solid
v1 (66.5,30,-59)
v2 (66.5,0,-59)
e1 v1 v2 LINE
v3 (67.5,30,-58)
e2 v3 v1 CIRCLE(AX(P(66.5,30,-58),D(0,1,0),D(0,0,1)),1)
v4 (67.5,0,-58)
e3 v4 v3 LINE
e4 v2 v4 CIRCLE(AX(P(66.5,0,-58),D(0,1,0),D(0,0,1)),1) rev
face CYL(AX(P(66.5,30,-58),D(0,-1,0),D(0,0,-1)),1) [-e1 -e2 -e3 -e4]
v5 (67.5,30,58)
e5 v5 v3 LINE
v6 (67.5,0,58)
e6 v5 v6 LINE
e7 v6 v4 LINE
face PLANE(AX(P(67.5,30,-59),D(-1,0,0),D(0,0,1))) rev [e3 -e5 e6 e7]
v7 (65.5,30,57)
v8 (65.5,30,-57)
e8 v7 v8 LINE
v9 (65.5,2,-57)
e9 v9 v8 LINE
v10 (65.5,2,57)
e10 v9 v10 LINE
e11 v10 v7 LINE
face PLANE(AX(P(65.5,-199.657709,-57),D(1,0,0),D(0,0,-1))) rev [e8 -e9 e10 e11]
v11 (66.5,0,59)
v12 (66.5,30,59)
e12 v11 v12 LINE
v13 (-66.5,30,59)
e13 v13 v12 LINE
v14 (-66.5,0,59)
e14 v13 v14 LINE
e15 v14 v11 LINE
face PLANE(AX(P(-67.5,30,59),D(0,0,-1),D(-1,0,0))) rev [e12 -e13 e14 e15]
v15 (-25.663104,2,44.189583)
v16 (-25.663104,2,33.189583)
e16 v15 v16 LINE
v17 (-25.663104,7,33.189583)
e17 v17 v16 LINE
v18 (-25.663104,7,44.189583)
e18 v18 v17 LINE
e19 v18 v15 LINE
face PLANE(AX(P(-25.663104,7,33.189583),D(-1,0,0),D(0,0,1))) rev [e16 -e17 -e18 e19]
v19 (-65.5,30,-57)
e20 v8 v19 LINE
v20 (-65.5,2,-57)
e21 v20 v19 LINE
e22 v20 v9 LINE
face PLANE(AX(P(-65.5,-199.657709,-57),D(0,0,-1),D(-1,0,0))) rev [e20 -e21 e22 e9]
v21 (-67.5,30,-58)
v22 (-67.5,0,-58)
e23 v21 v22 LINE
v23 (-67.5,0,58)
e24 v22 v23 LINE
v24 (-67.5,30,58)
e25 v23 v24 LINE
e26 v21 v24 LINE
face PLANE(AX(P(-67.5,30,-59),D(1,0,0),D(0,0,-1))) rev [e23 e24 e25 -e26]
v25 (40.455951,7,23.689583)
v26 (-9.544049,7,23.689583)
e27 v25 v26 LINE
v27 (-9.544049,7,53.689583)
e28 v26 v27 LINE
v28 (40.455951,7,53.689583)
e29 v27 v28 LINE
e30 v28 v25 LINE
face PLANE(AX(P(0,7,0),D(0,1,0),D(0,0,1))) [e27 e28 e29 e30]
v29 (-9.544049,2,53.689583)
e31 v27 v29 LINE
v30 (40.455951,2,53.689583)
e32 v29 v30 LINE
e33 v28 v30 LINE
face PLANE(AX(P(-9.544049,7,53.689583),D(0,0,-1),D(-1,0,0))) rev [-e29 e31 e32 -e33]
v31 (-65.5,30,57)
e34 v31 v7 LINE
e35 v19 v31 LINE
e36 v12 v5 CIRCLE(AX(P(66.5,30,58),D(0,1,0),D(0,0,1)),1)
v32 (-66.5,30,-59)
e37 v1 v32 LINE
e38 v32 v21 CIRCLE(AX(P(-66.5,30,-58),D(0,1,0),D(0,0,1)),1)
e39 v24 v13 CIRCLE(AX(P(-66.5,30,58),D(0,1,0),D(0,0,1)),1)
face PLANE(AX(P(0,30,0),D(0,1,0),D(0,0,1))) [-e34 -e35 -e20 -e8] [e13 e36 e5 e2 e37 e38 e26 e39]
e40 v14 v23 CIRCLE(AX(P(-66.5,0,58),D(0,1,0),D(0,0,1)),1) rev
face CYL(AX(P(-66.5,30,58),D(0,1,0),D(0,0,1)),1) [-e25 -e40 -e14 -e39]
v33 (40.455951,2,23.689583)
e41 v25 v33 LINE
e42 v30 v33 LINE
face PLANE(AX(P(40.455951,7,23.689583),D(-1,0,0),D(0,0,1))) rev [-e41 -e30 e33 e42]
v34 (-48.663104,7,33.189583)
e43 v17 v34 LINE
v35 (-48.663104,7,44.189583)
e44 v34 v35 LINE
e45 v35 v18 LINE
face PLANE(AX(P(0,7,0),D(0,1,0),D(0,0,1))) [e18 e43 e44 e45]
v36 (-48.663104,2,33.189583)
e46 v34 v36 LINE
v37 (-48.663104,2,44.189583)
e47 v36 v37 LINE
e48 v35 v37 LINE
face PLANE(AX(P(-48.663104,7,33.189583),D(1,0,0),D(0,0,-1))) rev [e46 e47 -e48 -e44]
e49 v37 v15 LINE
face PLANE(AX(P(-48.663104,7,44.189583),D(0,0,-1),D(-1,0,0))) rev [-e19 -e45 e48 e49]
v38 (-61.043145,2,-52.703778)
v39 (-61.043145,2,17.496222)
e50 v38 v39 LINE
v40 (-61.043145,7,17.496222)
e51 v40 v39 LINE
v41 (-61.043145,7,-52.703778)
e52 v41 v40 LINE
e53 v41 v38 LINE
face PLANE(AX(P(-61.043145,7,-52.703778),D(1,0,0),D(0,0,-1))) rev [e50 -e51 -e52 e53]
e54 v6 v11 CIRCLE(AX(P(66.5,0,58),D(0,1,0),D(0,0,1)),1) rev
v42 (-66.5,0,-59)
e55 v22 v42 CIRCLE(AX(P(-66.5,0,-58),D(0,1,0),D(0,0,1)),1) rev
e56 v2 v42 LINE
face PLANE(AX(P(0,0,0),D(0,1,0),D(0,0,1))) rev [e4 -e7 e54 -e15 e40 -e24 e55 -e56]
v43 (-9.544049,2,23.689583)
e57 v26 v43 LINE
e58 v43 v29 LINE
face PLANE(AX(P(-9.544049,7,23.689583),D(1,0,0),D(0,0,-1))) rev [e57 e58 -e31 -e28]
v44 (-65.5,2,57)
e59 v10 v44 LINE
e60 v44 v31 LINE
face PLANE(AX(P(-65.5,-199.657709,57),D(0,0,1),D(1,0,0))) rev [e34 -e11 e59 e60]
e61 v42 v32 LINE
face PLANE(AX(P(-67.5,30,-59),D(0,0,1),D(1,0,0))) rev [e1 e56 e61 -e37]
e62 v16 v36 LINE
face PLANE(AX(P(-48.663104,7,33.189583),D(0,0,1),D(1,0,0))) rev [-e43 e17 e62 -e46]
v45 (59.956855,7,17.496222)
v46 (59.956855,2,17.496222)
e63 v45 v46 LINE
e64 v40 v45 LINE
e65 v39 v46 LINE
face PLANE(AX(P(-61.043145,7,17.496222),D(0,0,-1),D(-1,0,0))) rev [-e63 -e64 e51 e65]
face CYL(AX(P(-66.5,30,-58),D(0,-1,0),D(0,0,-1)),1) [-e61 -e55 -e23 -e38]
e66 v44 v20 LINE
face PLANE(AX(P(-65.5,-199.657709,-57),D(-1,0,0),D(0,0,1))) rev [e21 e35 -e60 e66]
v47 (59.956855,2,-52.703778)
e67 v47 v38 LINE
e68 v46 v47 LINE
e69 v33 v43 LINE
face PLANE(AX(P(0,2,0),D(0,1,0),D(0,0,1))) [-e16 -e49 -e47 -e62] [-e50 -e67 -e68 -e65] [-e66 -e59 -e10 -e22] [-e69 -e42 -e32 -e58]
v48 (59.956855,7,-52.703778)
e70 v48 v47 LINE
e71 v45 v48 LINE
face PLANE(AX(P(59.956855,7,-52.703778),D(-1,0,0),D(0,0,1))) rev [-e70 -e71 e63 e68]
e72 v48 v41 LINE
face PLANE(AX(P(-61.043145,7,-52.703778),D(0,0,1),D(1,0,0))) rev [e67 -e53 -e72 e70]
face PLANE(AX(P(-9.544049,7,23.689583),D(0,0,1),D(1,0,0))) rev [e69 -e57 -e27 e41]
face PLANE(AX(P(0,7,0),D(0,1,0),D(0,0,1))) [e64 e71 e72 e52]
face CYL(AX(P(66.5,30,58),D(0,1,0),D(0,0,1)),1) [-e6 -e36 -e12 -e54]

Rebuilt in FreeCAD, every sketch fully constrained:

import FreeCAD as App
import Part
import Sketcher


def edges_at(feature, points):
    """Names of the edges that pass closest to the given points."""
    edges = feature.Shape.Edges
    near = lambda p: min(range(len(edges)), key=lambda i: edges[i].distToShape(Part.Vertex(*p))[0])
    return sorted({f"Edge{near(p) + 1}" for p in points})

doc = App.newDocument("Part")
body = doc.addObject("PartDesign::Body", "Body")

# Sketch on XZ plane
sketch1 = body.newObject("Sketcher::SketchObject", "Sketch")
sketch1.AttachmentSupport = (doc.getObject("XZ_Plane"), [""])
sketch1.MapMode = "FlatFace"
sketch1.addGeometry([
    Part.LineSegment(App.Vector(-68, -59, 0), App.Vector(-68, 59, 0)),
    Part.LineSegment(App.Vector(-68, 59, 0), App.Vector(68, 59, 0)),
    Part.LineSegment(App.Vector(68, 59, 0), App.Vector(68, -59, 0)),
    Part.LineSegment(App.Vector(68, -59, 0), App.Vector(-68, -59, 0)),
], False)
sketch1.addConstraint([
    Sketcher.Constraint("Coincident", 0, 2, 1, 1),
    Sketcher.Constraint("Coincident", 1, 2, 2, 1),
    Sketcher.Constraint("Coincident", 2, 2, 3, 1),
    Sketcher.Constraint("Coincident", 3, 2, 0, 1),
    Sketcher.Constraint("Vertical", 0),
    Sketcher.Constraint("Horizontal", 1),
    Sketcher.Constraint("Vertical", 2),
    Sketcher.Constraint("Horizontal", 3),
    Sketcher.Constraint("Symmetric", 0, 2, 2, 2, -1, 1),
    Sketcher.Constraint("DistanceX", 1, 1, 1, 2, 135.0),
    Sketcher.Constraint("DistanceY", 0, 1, 0, 2, 118.0),
])
pad1 = body.newObject("PartDesign::Pad", "Pad")
pad1.Profile = sketch1
pad1.Length = 30
pad1.Reversed = True

# Sketch on XZ plane
sketch2 = body.newObject("Sketcher::SketchObject", "Sketch001")
sketch2.AttachmentSupport = (doc.getObject("XZ_Plane"), [""])
sketch2.MapMode = "FlatFace"
sketch2.AttachmentOffset = App.Placement(App.Vector(0, 0, -30), App.Rotation())
sketch2.addGeometry([
    Part.LineSegment(App.Vector(-66, -57, 0), App.Vector(-66, 57, 0)),
    Part.LineSegment(App.Vector(-66, 57, 0), App.Vector(66, 57, 0)),
    Part.LineSegment(App.Vector(66, 57, 0), App.Vector(66, -57, 0)),
    Part.LineSegment(App.Vector(66, -57, 0), App.Vector(-66, -57, 0)),
], False)
sketch2.addConstraint([
    Sketcher.Constraint("Coincident", 0, 2, 1, 1),
    Sketcher.Constraint("Coincident", 1, 2, 2, 1),
    Sketcher.Constraint("Coincident", 2, 2, 3, 1),
    Sketcher.Constraint("Coincident", 3, 2, 0, 1),
    Sketcher.Constraint("Vertical", 0),
    Sketcher.Constraint("Horizontal", 1),
    Sketcher.Constraint("Vertical", 2),
    Sketcher.Constraint("Horizontal", 3),
    Sketcher.Constraint("Symmetric", 0, 2, 2, 2, -1, 1),
    Sketcher.Constraint("DistanceX", 1, 1, 1, 2, 131.0),
    Sketcher.Constraint("DistanceY", 0, 1, 0, 2, 114.0),
])
pocket1 = body.newObject("PartDesign::Pocket", "Pocket")
pocket1.Profile = sketch2
pocket1.Length = 28
pocket1.Reversed = True

# Sketch on XZ plane
sketch3 = body.newObject("Sketcher::SketchObject", "Sketch002")
sketch3.AttachmentSupport = (doc.getObject("XZ_Plane"), [""])
sketch3.MapMode = "FlatFace"
sketch3.AttachmentOffset = App.Placement(App.Vector(0, 0, -2), App.Rotation())
sketch3.addGeometry([
    Part.LineSegment(App.Vector(-61, -53, 0), App.Vector(-61, 17, 0)),  # 0
    Part.LineSegment(App.Vector(-61, 17, 0), App.Vector(60, 17, 0)),  # 1
    Part.LineSegment(App.Vector(60, 17, 0), App.Vector(60, -53, 0)),  # 2
    Part.LineSegment(App.Vector(60, -53, 0), App.Vector(-61, -53, 0)),  # 3
    Part.LineSegment(App.Vector(-49, 33, 0), App.Vector(-49, 44, 0)),  # 4
    Part.LineSegment(App.Vector(-49, 44, 0), App.Vector(-26, 44, 0)),  # 5
    Part.LineSegment(App.Vector(-26, 44, 0), App.Vector(-26, 33, 0)),  # 6
    Part.LineSegment(App.Vector(-26, 33, 0), App.Vector(-49, 33, 0)),  # 7
    Part.LineSegment(App.Vector(-10, 24, 0), App.Vector(-10, 54, 0)),  # 8
    Part.LineSegment(App.Vector(-10, 54, 0), App.Vector(40, 54, 0)),  # 9
    Part.LineSegment(App.Vector(40, 54, 0), App.Vector(40, 24, 0)),  # 10
    Part.LineSegment(App.Vector(40, 24, 0), App.Vector(-10, 24, 0)),  # 11
], False)
sketch3.addConstraint([
    Sketcher.Constraint("Coincident", 0, 2, 1, 1),
    Sketcher.Constraint("Coincident", 1, 2, 2, 1),
    Sketcher.Constraint("Coincident", 2, 2, 3, 1),
    Sketcher.Constraint("Coincident", 3, 2, 0, 1),
    Sketcher.Constraint("Coincident", 4, 2, 5, 1),
    Sketcher.Constraint("Coincident", 5, 2, 6, 1),
    Sketcher.Constraint("Coincident", 6, 2, 7, 1),
    Sketcher.Constraint("Coincident", 7, 2, 4, 1),
    Sketcher.Constraint("Coincident", 8, 2, 9, 1),
    Sketcher.Constraint("Coincident", 9, 2, 10, 1),
    Sketcher.Constraint("Coincident", 10, 2, 11, 1),
    Sketcher.Constraint("Coincident", 11, 2, 8, 1),
    Sketcher.Constraint("Vertical", 0),
    Sketcher.Constraint("Horizontal", 1),
    Sketcher.Constraint("Vertical", 2),
    Sketcher.Constraint("Horizontal", 3),
    Sketcher.Constraint("Vertical", 4),
    Sketcher.Constraint("Horizontal", 5),
    Sketcher.Constraint("Vertical", 6),
    Sketcher.Constraint("Horizontal", 7),
    Sketcher.Constraint("Vertical", 8),
    Sketcher.Constraint("Horizontal", 9),
    Sketcher.Constraint("Vertical", 10),
    Sketcher.Constraint("Horizontal", 11),
    Sketcher.Constraint("DistanceX", 1, 1, 1, 2, 121.0),
    Sketcher.Constraint("DistanceX", 5, 1, 5, 2, 23.0),
    Sketcher.Constraint("DistanceX", 9, 1, 9, 2, 50.0),
    Sketcher.Constraint("DistanceY", 4, 1, 4, 2, 11.0),
    Sketcher.Constraint("DistanceY", 8, 1, 8, 2, 30.0),
    Sketcher.Constraint("DistanceY", 0, 1, 0, 2, 70.2),
    Sketcher.Constraint("DistanceY", 5, 2, 8, 2, 9.5),
    Sketcher.Constraint("DistanceX", 8, 2, -1, 1, 9.544049),
    Sketcher.Constraint("DistanceX", 0, 2, 4, 2, 12.380042),
    Sketcher.Constraint("DistanceY", 0, 2, 4, 2, 26.69336),
    Sketcher.Constraint("DistanceX", 0, 2, -1, 1, 61.043145),
    Sketcher.Constraint("DistanceY", -1, 1, 0, 2, 17.496222),
])
pad2 = body.newObject("PartDesign::Pad", "Pad001")
pad2.Profile = sketch3
pad2.Length = 5
pad2.Reversed = True
doc.recompute()

fillet = body.newObject("PartDesign::Fillet", "Fillet")
fillet.Base = (pad2, edges_at(pad2, [(-67.5, 15, 59)]))
fillet.Radius = 1
doc.recompute()

fillet2 = body.newObject("PartDesign::Fillet", "Fillet001")
fillet2.Base = (fillet, edges_at(fillet, [(67.5, 15, 59)]))
fillet2.Radius = 1
doc.recompute()

fillet3 = body.newObject("PartDesign::Fillet", "Fillet002")
fillet3.Base = (fillet2, edges_at(fillet2, [(67.5, 15, -59)]))
fillet3.Radius = 1
doc.recompute()

fillet4 = body.newObject("PartDesign::Fillet", "Fillet003")
fillet4.Base = (fillet3, edges_at(fillet3, [(-67.5, 15, -59)]))
fillet4.Radius = 1

doc.recompute()
